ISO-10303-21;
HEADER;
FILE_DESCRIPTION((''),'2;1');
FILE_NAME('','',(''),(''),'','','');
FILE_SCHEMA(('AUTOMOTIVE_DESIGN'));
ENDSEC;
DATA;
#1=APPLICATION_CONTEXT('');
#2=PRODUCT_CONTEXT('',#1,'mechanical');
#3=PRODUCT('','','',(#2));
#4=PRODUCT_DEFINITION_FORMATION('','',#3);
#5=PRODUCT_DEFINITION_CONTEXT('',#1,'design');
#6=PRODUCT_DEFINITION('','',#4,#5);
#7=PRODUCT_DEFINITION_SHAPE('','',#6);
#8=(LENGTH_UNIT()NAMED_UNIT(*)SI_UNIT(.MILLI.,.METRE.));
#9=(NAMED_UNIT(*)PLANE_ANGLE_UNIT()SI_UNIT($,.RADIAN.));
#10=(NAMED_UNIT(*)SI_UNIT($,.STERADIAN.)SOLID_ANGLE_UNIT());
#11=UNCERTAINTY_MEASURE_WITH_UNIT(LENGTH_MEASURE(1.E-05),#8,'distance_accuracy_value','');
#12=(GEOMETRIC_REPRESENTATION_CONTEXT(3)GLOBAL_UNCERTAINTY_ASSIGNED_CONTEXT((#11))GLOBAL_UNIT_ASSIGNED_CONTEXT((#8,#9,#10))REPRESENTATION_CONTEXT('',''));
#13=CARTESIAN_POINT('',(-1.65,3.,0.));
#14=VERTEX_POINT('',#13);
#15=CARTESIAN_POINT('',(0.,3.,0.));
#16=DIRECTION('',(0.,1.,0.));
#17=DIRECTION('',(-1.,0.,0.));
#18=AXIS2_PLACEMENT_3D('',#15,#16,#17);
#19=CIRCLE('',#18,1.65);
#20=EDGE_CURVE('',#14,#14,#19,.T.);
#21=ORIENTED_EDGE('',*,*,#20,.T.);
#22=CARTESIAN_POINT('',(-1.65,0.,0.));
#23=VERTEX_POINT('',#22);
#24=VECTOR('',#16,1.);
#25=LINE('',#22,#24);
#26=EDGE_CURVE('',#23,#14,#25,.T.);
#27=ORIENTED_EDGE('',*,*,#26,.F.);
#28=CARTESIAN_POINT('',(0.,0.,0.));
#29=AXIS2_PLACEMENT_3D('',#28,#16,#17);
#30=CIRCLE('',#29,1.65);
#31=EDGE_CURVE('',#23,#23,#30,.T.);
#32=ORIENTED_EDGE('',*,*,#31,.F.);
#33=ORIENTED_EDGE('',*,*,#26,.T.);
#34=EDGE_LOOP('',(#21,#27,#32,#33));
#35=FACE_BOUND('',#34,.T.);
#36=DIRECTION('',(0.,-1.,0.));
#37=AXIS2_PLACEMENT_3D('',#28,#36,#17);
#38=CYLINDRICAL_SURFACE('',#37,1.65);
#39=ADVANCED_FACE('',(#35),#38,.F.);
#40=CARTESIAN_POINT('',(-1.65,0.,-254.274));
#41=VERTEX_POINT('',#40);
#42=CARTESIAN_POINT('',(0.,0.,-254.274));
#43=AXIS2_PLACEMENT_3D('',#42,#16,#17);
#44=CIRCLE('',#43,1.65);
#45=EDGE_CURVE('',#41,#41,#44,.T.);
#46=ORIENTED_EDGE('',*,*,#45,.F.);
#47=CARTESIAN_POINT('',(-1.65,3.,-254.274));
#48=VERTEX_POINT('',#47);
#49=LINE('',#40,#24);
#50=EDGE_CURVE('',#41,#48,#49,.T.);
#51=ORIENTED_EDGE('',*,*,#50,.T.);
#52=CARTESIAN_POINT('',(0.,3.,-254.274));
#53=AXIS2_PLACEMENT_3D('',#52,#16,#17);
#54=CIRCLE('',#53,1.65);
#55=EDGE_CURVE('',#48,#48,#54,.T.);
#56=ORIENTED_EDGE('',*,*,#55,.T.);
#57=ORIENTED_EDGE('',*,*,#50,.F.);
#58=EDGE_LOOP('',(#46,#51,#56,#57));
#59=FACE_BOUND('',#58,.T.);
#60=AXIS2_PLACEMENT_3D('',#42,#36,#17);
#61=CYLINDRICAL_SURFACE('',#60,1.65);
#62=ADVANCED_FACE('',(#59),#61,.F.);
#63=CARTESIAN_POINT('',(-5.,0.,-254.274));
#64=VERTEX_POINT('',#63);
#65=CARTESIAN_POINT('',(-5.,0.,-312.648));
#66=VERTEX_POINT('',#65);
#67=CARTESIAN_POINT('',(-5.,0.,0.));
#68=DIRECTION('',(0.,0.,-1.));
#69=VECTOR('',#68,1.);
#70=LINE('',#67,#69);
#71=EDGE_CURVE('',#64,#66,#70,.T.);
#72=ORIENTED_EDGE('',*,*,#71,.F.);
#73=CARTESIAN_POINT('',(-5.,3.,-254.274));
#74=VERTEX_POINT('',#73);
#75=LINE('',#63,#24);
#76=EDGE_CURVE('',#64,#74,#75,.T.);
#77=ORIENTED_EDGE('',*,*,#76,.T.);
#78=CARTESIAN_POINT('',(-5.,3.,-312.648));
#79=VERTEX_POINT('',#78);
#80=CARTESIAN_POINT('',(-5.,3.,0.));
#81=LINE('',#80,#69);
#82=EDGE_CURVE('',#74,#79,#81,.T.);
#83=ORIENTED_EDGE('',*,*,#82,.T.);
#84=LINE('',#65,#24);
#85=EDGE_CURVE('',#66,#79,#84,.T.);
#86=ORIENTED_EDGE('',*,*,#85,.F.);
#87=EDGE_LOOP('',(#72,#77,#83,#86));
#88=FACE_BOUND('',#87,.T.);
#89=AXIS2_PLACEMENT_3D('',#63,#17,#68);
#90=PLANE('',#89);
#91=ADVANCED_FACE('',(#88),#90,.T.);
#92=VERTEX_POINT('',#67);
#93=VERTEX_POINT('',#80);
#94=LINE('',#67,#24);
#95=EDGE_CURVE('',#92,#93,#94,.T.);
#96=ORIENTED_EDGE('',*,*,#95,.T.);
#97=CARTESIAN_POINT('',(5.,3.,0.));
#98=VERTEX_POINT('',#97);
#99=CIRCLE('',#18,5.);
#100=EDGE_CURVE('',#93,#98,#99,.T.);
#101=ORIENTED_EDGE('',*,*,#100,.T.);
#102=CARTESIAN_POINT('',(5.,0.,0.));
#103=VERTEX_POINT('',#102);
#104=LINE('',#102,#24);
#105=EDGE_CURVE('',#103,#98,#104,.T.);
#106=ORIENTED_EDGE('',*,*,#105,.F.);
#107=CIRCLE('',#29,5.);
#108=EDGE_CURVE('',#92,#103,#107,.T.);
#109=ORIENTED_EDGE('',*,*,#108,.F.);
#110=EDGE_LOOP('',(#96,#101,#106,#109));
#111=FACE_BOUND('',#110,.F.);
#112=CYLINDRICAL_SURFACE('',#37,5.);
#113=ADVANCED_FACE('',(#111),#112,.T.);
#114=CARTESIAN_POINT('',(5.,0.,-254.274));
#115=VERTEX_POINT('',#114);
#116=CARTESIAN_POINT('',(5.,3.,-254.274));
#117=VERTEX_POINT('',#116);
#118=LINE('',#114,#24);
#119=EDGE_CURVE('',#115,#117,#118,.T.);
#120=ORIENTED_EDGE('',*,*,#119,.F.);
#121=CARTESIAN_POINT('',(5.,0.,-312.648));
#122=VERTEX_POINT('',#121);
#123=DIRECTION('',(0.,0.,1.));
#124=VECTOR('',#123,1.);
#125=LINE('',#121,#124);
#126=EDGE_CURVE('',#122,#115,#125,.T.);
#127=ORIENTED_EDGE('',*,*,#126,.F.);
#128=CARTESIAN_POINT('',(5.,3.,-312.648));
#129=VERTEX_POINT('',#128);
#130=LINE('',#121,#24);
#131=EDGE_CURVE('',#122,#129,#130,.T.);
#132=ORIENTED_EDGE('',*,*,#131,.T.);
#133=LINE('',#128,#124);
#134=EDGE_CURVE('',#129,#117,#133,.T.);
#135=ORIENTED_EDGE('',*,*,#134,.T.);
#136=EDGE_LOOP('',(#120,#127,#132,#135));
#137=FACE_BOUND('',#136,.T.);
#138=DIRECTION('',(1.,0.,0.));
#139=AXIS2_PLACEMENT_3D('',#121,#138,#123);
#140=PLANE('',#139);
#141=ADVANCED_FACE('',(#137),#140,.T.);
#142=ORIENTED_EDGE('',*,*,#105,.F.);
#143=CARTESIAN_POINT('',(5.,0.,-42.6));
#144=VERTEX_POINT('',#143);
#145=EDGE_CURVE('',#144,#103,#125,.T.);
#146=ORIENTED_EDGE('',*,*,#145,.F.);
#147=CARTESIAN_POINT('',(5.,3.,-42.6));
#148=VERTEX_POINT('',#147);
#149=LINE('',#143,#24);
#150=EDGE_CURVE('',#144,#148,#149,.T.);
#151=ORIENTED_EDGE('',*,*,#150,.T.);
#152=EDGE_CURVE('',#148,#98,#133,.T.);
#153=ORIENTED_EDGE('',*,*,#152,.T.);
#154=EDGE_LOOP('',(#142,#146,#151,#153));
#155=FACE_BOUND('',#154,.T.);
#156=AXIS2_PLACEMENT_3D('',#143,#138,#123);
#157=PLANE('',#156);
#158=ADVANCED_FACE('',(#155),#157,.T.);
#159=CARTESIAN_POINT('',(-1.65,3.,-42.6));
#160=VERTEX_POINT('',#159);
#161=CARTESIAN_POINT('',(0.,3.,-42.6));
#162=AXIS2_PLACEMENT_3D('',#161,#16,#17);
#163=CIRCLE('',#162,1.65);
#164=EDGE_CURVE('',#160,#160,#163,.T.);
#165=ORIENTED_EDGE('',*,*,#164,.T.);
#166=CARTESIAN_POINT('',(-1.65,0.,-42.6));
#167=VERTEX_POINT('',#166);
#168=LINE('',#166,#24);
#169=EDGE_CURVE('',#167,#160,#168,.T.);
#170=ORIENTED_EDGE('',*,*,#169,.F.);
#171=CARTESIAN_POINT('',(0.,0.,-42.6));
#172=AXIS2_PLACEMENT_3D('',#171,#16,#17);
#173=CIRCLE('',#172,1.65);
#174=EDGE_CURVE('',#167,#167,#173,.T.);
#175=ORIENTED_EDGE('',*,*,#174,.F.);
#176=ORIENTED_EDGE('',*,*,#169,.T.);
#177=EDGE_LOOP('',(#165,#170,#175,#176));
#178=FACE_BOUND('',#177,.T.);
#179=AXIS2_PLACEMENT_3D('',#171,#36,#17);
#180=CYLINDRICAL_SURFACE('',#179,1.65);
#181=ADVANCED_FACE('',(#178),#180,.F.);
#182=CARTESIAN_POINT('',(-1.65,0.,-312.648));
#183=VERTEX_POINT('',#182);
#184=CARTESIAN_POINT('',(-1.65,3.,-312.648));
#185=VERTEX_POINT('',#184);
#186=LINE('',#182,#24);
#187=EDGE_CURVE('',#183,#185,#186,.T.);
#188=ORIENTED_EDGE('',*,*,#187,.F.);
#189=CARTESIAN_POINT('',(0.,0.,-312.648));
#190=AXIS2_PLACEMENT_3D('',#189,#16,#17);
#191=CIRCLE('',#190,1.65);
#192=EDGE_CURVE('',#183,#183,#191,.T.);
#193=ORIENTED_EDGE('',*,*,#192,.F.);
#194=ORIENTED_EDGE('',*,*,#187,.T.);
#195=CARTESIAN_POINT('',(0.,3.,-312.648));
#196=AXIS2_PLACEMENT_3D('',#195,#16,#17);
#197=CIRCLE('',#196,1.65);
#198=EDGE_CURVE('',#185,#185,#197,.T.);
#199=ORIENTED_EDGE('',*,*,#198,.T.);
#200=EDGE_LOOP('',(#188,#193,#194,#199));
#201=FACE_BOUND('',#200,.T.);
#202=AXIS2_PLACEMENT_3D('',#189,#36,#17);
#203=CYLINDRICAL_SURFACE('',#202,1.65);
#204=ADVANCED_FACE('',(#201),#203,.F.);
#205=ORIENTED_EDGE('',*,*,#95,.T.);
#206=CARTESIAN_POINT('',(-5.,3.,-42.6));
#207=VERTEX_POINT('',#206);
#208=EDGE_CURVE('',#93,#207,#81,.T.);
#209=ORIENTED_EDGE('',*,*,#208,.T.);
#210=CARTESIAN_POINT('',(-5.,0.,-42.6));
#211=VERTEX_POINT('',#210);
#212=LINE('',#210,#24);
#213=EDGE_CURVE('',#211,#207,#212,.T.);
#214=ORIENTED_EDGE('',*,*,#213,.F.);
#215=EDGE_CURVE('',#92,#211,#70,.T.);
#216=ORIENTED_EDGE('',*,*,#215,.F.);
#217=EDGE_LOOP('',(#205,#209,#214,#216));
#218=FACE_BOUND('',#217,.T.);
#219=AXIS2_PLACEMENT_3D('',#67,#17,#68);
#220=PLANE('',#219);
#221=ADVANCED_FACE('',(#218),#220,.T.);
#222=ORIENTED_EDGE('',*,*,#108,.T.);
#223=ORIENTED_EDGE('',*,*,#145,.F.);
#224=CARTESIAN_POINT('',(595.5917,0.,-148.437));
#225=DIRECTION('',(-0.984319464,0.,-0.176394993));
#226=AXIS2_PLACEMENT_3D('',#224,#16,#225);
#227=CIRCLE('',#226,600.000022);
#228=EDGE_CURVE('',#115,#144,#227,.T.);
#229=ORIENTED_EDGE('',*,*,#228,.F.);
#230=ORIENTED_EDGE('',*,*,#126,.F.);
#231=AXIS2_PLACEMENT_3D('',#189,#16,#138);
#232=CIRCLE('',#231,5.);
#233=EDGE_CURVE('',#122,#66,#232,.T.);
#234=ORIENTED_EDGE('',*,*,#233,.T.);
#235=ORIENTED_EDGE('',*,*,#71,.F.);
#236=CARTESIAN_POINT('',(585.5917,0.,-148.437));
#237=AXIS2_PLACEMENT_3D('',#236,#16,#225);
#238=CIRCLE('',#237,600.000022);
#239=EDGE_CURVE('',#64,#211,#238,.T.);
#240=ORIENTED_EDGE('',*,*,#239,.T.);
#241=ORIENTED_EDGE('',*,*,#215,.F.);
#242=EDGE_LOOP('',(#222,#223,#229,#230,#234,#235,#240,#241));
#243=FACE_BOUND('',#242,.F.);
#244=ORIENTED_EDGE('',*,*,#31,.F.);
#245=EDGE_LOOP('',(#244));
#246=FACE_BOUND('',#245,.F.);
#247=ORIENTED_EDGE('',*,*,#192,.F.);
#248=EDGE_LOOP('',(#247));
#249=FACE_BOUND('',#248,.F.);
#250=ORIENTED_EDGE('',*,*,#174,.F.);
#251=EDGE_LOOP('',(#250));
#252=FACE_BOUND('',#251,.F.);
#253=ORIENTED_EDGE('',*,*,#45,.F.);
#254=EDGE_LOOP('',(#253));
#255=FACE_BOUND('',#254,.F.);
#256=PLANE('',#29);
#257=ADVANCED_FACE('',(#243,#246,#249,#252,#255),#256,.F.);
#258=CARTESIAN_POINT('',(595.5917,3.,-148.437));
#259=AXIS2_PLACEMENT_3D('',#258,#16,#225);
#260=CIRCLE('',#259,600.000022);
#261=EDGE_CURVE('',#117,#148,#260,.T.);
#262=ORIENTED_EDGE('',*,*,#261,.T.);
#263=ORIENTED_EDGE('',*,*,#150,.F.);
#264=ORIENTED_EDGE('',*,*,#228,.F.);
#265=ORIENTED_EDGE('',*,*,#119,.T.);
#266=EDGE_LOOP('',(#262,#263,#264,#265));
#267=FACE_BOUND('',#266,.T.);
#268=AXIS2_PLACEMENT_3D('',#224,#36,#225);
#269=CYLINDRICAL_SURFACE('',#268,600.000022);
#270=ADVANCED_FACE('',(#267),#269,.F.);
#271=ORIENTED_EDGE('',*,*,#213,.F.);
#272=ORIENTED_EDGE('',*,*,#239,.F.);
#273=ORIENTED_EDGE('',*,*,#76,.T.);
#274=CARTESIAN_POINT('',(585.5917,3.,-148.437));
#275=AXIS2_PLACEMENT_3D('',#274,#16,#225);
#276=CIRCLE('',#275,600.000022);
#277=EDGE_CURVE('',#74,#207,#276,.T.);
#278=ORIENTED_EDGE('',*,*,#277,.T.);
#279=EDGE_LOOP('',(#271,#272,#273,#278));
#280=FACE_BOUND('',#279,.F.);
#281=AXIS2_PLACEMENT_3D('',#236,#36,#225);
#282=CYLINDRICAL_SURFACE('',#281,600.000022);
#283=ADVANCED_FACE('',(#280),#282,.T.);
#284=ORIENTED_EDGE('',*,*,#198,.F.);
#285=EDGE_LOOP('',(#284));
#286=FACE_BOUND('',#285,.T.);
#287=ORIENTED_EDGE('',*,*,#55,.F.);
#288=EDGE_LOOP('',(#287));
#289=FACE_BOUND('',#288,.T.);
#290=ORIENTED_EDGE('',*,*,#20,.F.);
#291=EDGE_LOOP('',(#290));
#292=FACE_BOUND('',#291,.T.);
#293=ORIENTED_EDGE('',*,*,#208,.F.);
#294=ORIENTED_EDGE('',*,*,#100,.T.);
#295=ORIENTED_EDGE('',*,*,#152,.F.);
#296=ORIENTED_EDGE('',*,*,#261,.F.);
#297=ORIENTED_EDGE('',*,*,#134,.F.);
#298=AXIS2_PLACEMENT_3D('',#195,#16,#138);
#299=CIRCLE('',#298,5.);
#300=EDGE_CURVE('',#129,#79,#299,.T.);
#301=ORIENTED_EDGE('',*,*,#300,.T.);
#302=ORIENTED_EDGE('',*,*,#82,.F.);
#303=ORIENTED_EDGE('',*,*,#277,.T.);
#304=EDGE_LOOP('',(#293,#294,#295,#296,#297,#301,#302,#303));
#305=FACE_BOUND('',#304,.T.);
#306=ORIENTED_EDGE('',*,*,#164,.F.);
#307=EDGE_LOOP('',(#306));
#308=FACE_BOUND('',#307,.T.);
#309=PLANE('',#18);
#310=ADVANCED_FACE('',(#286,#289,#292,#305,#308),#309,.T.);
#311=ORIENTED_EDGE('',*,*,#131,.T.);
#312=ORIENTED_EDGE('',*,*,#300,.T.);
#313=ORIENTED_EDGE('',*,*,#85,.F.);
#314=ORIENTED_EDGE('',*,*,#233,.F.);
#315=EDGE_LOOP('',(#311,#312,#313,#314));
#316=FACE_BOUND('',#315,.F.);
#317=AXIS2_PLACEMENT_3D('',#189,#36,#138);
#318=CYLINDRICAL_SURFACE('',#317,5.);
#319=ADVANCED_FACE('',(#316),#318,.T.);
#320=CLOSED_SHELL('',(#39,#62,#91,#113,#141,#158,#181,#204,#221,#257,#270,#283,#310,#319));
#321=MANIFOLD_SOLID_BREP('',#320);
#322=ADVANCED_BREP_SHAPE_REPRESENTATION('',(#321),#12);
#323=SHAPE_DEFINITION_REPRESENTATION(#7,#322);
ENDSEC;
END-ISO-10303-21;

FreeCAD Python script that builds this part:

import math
import FreeCAD as App
import Part
import Sketcher

doc = App.newDocument("Part")
body = doc.addObject("PartDesign::Body", "Body")

# Sketch on XZ plane
sketch1 = body.newObject("Sketcher::SketchObject", "Sketch")
sketch1.AttachmentSupport = (doc.getObject("XZ_Plane"), [""])
sketch1.MapMode = "FlatFace"
sketch1.addGeometry(Part.LineSegment(App.Vector(-5, -42.6, 0), App.Vector(-5, 0, 0)), False)
sketch1.addGeometry(Part.ArcOfCircle(Part.Circle(App.Vector(0, 0, 0), App.Vector(0, 0, 1), 5), math.radians(0), math.radians(180)), False)
sketch1.addGeometry(Part.LineSegment(App.Vector(5, 0, 0), App.Vector(5, -42.6, 0)), False)
sketch1.addGeometry(Part.ArcOfCircle(Part.Circle(App.Vector(595.6, -148.4, 0), App.Vector(0, 0, 1), 600), math.radians(170), math.radians(190)), False)
sketch1.addGeometry(Part.LineSegment(App.Vector(5, -254.3, 0), App.Vector(5, -312.6, 0)), False)
sketch1.addGeometry(Part.ArcOfCircle(Part.Circle(App.Vector(0, -312.6, 0), App.Vector(0, 0, 1), 5), math.radians(180), math.radians(360)), False)
sketch1.addGeometry(Part.LineSegment(App.Vector(-5, -312.6, 0), App.Vector(-5, -254.3, 0)), False)
sketch1.addGeometry(Part.ArcOfCircle(Part.Circle(App.Vector(585.6, -148.4, 0), App.Vector(0, 0, 1), 600), math.radians(170), math.radians(190)), False)
sketch1.addGeometry(Part.Circle(App.Vector(0, -312.6, 0), App.Vector(0, 0, 1), 1.6), False)
sketch1.addGeometry(Part.Circle(App.Vector(0, -254.3, 0), App.Vector(0, 0, 1), 1.6), False)
sketch1.addGeometry(Part.Circle(App.Vector(0, -42.6, 0), App.Vector(0, 0, 1), 1.6), False)
sketch1.addGeometry(Part.Circle(App.Vector(0, 0, 0), App.Vector(0, 0, 1), 1.6), False)
sketch1.addConstraint(Sketcher.Constraint("Tangent", 0, 2, 1, 2))
sketch1.addConstraint(Sketcher.Constraint("Tangent", 1, 1, 2, 1))
sketch1.addConstraint(Sketcher.Constraint("Coincident", 2, 2, 3, 1))
sketch1.addConstraint(Sketcher.Constraint("Coincident", 3, 2, 4, 1))
sketch1.addConstraint(Sketcher.Constraint("Tangent", 4, 2, 5, 2))
sketch1.addConstraint(Sketcher.Constraint("Tangent", 5, 1, 6, 1))
sketch1.addConstraint(Sketcher.Constraint("Coincident", 6, 2, 7, 2))
sketch1.addConstraint(Sketcher.Constraint("Coincident", 7, 1, 0, 1))
sketch1.addConstraint(Sketcher.Constraint("Vertical", 0))
sketch1.addConstraint(Sketcher.Constraint("Vertical", 2))
sketch1.addConstraint(Sketcher.Constraint("Vertical", 4))
sketch1.addConstraint(Sketcher.Constraint("Vertical", 6))
sketch1.addConstraint(Sketcher.Constraint("Coincident", 1, 3, -1, 1))
sketch1.addConstraint(Sketcher.Constraint("Coincident", 11, 3, -1, 1))
sketch1.addConstraint(Sketcher.Constraint("Coincident", 8, 3, 5, 3))
sketch1.addConstraint(Sketcher.Constraint("Equal", 1, 5))
sketch1.addConstraint(Sketcher.Constraint("Equal", 3, 7))
sketch1.addConstraint(Sketcher.Constraint("Equal", 8, 9))
sketch1.addConstraint(Sketcher.Constraint("Equal", 9, 10))
sketch1.addConstraint(Sketcher.Constraint("Equal", 10, 11))
sketch1.addConstraint(Sketcher.Constraint("Symmetric", 3, 2, 6, 2, -2))
sketch1.addConstraint(Sketcher.Constraint("PointOnObject", 9, 3, -2))
sketch1.addConstraint(Sketcher.Constraint("PointOnObject", 10, 3, -2))
sketch1.addConstraint(Sketcher.Constraint("Horizontal", 3, 3, 7, 3))
sketch1.addConstraint(Sketcher.Constraint("Horizontal", 10, 3, 2, 2))
sketch1.addConstraint(Sketcher.Constraint("Horizontal", 9, 3, 3, 2))
sketch1.addConstraint(Sketcher.Constraint("Radius", 1, 5.0))
sketch1.addConstraint(Sketcher.Constraint("Radius", 3, 600.0))
sketch1.addConstraint(Sketcher.Constraint("Diameter", 8, 3.3))
sketch1.addConstraint(Sketcher.Constraint("DistanceY", 0, 1, 0, 2, 42.6))
sketch1.addConstraint(Sketcher.Constraint("DistanceY", 5, 3, -1, 1, 312.648))
sketch1.addConstraint(Sketcher.Constraint("DistanceY", 9, 3, -1, 1, 254.274))
pad1 = body.newObject("PartDesign::Pad", "Pad")
pad1.Profile = sketch1
pad1.Length = 3
pad1.Reversed = True

doc.recompute()
